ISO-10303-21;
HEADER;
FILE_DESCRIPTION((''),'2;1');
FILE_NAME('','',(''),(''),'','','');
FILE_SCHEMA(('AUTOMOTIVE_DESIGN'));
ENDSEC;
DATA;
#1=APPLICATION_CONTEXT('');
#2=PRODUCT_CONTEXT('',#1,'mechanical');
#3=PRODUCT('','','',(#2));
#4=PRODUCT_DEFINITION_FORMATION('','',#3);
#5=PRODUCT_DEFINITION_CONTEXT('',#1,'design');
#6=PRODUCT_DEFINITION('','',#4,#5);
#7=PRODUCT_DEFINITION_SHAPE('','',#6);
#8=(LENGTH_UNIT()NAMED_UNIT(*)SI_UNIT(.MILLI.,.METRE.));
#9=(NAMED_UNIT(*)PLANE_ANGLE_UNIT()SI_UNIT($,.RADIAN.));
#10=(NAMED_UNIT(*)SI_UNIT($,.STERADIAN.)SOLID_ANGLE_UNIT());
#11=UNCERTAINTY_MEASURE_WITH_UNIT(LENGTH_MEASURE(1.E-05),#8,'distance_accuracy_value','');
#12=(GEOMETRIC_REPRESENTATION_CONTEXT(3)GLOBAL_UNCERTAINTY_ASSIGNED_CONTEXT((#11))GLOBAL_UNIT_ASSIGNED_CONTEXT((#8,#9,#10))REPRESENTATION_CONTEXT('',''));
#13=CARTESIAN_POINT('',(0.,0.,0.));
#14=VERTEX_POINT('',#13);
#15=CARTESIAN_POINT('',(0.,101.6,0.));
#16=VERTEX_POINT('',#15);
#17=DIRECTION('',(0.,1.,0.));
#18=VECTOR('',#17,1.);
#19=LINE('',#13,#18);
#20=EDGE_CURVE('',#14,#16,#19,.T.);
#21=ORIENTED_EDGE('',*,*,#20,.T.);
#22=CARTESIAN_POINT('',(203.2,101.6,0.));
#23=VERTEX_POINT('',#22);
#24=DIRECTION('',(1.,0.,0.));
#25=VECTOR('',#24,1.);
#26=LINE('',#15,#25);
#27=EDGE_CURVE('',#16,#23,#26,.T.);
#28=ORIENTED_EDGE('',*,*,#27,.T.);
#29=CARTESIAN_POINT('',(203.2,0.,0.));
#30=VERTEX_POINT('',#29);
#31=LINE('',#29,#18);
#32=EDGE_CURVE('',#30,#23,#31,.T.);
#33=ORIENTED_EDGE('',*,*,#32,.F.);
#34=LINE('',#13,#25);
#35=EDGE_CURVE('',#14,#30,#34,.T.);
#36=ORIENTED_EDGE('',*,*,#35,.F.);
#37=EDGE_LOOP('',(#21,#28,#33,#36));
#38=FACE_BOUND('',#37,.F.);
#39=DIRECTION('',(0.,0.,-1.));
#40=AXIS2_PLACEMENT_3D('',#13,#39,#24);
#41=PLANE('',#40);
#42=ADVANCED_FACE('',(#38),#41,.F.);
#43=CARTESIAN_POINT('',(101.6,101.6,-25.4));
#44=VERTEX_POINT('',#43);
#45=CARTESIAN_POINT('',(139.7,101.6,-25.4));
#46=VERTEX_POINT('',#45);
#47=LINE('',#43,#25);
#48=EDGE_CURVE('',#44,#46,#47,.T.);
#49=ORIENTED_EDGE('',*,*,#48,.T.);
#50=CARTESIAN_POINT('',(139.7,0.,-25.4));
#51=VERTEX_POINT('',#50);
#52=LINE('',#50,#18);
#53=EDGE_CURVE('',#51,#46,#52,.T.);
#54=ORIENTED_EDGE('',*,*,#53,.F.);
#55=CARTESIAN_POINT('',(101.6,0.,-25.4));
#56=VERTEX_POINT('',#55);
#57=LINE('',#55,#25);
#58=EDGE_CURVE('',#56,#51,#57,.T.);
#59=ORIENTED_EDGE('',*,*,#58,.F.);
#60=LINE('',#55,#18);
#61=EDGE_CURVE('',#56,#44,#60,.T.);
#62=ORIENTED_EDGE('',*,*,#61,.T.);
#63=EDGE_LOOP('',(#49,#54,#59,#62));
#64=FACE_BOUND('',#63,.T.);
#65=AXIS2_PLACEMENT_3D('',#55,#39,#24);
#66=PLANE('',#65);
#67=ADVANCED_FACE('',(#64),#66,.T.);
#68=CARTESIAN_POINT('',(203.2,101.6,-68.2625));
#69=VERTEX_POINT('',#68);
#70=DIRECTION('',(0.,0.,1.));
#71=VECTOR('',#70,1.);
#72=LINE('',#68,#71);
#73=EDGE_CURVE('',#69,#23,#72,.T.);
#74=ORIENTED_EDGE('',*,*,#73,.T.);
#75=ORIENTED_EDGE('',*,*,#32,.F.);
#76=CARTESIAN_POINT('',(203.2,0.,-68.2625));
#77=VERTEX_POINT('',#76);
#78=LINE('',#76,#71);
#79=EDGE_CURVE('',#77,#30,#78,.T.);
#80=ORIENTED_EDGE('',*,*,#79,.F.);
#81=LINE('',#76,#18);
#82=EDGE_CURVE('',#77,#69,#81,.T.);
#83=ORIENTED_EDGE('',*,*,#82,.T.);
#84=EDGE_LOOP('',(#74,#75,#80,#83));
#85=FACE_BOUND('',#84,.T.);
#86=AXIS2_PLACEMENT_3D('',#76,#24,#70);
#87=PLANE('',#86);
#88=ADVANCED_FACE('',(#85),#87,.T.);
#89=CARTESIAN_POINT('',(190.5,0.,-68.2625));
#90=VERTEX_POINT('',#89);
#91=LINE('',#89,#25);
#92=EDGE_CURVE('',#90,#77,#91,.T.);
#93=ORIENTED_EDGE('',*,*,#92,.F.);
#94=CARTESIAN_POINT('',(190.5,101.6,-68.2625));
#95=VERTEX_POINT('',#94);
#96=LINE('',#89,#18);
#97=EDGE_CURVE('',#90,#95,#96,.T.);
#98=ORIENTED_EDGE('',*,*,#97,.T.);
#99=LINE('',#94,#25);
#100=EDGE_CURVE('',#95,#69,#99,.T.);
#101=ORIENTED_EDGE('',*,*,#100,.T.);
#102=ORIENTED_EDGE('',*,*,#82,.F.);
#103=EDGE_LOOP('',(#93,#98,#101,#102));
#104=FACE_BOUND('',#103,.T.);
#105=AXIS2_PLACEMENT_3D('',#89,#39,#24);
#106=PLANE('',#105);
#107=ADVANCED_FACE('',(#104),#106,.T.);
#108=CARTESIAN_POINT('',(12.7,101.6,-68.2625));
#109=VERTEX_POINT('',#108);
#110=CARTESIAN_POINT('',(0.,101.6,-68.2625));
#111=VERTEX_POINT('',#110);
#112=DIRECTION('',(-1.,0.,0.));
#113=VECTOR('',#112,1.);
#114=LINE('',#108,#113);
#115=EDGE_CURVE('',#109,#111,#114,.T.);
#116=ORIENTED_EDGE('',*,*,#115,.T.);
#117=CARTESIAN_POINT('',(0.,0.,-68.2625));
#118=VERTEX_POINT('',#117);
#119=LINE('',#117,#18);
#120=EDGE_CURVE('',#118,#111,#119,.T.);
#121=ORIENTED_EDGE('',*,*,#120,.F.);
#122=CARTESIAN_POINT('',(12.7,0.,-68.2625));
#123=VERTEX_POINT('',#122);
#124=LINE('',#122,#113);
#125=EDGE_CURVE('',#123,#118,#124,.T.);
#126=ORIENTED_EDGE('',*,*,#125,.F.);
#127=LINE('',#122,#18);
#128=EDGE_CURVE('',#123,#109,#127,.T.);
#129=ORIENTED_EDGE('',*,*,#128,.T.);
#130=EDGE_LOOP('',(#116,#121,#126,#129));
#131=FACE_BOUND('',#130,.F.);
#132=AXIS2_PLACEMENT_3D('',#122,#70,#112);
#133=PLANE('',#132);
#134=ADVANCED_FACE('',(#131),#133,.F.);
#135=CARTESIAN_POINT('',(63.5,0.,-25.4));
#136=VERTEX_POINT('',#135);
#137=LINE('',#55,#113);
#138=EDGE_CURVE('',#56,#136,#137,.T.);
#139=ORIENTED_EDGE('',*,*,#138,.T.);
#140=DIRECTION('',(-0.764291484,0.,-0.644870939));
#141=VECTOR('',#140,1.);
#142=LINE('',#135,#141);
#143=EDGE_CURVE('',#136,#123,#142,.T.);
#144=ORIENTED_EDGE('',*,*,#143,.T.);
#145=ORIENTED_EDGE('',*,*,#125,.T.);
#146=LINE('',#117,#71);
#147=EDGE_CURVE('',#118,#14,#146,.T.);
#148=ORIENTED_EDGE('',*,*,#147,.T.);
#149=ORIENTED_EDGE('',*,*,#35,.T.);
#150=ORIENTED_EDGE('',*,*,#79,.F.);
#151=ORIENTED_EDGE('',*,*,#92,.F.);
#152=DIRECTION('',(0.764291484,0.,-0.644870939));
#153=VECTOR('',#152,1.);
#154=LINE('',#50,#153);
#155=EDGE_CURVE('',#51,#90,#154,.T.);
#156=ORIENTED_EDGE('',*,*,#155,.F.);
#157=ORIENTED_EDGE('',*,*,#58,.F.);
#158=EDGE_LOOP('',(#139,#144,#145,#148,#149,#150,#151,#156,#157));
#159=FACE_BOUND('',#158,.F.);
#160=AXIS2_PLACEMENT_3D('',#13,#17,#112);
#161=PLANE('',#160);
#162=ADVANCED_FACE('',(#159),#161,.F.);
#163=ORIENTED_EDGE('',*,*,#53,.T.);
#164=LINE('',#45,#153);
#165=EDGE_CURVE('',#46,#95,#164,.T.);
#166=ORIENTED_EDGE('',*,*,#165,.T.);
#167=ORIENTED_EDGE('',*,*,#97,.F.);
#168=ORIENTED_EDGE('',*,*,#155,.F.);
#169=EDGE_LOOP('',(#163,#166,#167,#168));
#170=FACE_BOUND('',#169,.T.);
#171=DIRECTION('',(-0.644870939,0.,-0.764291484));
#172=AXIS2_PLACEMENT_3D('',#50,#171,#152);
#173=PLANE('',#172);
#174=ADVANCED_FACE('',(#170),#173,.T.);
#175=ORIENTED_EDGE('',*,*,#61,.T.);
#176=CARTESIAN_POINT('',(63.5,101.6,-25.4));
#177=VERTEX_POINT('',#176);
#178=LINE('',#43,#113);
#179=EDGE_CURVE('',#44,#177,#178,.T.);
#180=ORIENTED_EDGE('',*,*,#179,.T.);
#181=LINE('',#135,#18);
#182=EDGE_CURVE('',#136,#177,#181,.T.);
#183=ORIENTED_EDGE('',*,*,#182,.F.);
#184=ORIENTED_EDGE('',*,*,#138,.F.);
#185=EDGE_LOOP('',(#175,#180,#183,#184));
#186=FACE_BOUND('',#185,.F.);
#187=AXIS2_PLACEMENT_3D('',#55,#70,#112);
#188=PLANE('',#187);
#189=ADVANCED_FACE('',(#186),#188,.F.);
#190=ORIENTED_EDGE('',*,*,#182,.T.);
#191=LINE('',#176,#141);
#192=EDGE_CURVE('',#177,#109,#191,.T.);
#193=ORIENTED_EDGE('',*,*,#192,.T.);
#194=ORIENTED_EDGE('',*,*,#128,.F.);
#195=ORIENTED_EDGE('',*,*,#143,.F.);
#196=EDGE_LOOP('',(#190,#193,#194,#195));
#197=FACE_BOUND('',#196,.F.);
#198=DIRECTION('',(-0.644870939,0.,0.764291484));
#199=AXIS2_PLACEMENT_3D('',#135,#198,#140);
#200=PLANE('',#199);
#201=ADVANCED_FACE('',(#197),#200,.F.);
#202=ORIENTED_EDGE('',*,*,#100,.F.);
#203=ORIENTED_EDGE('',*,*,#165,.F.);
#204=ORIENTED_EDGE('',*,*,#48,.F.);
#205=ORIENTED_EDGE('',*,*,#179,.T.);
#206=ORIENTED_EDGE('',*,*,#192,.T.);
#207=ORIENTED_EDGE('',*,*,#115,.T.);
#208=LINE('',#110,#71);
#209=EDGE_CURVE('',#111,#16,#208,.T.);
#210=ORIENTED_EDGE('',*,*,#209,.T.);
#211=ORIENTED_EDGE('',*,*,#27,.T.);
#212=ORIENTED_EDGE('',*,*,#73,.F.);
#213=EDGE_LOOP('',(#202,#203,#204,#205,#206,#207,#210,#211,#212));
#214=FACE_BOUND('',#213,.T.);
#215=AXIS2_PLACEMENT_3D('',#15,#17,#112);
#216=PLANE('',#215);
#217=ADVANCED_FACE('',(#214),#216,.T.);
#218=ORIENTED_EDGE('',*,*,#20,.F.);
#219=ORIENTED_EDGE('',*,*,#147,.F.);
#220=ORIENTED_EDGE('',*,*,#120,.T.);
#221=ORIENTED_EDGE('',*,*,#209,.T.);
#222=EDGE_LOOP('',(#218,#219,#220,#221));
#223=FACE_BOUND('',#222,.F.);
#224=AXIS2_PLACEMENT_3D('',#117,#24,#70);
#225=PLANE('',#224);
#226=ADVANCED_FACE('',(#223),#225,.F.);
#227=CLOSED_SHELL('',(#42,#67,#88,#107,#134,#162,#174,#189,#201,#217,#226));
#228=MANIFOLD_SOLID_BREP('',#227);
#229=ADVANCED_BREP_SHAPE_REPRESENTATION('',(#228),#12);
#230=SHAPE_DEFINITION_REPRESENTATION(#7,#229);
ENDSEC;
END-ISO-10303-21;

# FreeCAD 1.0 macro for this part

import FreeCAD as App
import Part
import Sketcher

V = App.Vector
Q = App.Units.Quantity

doc = App.newDocument("Part")
body = doc.addObject("PartDesign::Body", "Body")

# Sketch on XZ plane
sketch1 = body.newObject("Sketcher::SketchObject", "Sketch")
sketch1.AttachmentSupport = (doc.getObject("XZ_Plane"), [""])
sketch1.MapMode = "FlatFace"
sketch1.addGeometry([
    Part.LineSegment(V(0, -68, 0), V(0, 0, 0)),  # 0
    Part.LineSegment(V(0, 0, 0), V(203, 0, 0)),  # 1
    Part.LineSegment(V(203, 0, 0), V(203, -68, 0)),  # 2
    Part.LineSegment(V(203, -68, 0), V(190, -68, 0)),  # 3
    Part.LineSegment(V(190, -68, 0), V(140, -25, 0)),  # 4
    Part.LineSegment(V(140, -25, 0), V(64, -25, 0)),  # 5
    Part.LineSegment(V(64, -25, 0), V(13, -68, 0)),  # 6
    Part.LineSegment(V(13, -68, 0), V(0, -68, 0)),  # 7
], False)
sketch1.addConstraint([
    Sketcher.Constraint("Coincident", 0, 2, 1, 1),
    Sketcher.Constraint("Coincident", 1, 2, 2, 1),
    Sketcher.Constraint("Coincident", 2, 2, 3, 1),
    Sketcher.Constraint("Coincident", 3, 2, 4, 1),
    Sketcher.Constraint("Coincident", 4, 2, 5, 1),
    Sketcher.Constraint("Coincident", 5, 2, 6, 1),
    Sketcher.Constraint("Coincident", 6, 2, 7, 1),
    Sketcher.Constraint("Coincident", 7, 2, 0, 1),
    Sketcher.Constraint("Vertical", 0),
    Sketcher.Constraint("Horizontal", 1),
    Sketcher.Constraint("Vertical", 2),
    Sketcher.Constraint("Horizontal", 3),
    Sketcher.Constraint("Horizontal", 5),
    Sketcher.Constraint("Horizontal", 7),
    Sketcher.Constraint("Coincident", 0, 2, -1, 1),
    Sketcher.Constraint("Horizontal", 3, 2, 6, 2),
    Sketcher.Constraint("Equal", 3, 7),
    Sketcher.Constraint("Equal", 4, 6),
    Sketcher.Constraint("DistanceX", 1, 1, 1, 2, Q("8 in")),
    Sketcher.Constraint("DistanceX", 5, 2, 3, 2, Q("5 in")),
    Sketcher.Constraint("DistanceX", 5, 2, 5, 1, Q("3 in")),
    Sketcher.Constraint("DistanceY", 4, 2, -1, 1, Q("1 in")),
    Sketcher.Constraint("DistanceY", 0, 1, 0, 2, Q("2.6875 in")),
])
pad1 = body.newObject("PartDesign::Pad", "Pad")
pad1.Profile = sketch1
pad1.Length = Q("4 in")
pad1.Reversed = True

doc.recompute()
